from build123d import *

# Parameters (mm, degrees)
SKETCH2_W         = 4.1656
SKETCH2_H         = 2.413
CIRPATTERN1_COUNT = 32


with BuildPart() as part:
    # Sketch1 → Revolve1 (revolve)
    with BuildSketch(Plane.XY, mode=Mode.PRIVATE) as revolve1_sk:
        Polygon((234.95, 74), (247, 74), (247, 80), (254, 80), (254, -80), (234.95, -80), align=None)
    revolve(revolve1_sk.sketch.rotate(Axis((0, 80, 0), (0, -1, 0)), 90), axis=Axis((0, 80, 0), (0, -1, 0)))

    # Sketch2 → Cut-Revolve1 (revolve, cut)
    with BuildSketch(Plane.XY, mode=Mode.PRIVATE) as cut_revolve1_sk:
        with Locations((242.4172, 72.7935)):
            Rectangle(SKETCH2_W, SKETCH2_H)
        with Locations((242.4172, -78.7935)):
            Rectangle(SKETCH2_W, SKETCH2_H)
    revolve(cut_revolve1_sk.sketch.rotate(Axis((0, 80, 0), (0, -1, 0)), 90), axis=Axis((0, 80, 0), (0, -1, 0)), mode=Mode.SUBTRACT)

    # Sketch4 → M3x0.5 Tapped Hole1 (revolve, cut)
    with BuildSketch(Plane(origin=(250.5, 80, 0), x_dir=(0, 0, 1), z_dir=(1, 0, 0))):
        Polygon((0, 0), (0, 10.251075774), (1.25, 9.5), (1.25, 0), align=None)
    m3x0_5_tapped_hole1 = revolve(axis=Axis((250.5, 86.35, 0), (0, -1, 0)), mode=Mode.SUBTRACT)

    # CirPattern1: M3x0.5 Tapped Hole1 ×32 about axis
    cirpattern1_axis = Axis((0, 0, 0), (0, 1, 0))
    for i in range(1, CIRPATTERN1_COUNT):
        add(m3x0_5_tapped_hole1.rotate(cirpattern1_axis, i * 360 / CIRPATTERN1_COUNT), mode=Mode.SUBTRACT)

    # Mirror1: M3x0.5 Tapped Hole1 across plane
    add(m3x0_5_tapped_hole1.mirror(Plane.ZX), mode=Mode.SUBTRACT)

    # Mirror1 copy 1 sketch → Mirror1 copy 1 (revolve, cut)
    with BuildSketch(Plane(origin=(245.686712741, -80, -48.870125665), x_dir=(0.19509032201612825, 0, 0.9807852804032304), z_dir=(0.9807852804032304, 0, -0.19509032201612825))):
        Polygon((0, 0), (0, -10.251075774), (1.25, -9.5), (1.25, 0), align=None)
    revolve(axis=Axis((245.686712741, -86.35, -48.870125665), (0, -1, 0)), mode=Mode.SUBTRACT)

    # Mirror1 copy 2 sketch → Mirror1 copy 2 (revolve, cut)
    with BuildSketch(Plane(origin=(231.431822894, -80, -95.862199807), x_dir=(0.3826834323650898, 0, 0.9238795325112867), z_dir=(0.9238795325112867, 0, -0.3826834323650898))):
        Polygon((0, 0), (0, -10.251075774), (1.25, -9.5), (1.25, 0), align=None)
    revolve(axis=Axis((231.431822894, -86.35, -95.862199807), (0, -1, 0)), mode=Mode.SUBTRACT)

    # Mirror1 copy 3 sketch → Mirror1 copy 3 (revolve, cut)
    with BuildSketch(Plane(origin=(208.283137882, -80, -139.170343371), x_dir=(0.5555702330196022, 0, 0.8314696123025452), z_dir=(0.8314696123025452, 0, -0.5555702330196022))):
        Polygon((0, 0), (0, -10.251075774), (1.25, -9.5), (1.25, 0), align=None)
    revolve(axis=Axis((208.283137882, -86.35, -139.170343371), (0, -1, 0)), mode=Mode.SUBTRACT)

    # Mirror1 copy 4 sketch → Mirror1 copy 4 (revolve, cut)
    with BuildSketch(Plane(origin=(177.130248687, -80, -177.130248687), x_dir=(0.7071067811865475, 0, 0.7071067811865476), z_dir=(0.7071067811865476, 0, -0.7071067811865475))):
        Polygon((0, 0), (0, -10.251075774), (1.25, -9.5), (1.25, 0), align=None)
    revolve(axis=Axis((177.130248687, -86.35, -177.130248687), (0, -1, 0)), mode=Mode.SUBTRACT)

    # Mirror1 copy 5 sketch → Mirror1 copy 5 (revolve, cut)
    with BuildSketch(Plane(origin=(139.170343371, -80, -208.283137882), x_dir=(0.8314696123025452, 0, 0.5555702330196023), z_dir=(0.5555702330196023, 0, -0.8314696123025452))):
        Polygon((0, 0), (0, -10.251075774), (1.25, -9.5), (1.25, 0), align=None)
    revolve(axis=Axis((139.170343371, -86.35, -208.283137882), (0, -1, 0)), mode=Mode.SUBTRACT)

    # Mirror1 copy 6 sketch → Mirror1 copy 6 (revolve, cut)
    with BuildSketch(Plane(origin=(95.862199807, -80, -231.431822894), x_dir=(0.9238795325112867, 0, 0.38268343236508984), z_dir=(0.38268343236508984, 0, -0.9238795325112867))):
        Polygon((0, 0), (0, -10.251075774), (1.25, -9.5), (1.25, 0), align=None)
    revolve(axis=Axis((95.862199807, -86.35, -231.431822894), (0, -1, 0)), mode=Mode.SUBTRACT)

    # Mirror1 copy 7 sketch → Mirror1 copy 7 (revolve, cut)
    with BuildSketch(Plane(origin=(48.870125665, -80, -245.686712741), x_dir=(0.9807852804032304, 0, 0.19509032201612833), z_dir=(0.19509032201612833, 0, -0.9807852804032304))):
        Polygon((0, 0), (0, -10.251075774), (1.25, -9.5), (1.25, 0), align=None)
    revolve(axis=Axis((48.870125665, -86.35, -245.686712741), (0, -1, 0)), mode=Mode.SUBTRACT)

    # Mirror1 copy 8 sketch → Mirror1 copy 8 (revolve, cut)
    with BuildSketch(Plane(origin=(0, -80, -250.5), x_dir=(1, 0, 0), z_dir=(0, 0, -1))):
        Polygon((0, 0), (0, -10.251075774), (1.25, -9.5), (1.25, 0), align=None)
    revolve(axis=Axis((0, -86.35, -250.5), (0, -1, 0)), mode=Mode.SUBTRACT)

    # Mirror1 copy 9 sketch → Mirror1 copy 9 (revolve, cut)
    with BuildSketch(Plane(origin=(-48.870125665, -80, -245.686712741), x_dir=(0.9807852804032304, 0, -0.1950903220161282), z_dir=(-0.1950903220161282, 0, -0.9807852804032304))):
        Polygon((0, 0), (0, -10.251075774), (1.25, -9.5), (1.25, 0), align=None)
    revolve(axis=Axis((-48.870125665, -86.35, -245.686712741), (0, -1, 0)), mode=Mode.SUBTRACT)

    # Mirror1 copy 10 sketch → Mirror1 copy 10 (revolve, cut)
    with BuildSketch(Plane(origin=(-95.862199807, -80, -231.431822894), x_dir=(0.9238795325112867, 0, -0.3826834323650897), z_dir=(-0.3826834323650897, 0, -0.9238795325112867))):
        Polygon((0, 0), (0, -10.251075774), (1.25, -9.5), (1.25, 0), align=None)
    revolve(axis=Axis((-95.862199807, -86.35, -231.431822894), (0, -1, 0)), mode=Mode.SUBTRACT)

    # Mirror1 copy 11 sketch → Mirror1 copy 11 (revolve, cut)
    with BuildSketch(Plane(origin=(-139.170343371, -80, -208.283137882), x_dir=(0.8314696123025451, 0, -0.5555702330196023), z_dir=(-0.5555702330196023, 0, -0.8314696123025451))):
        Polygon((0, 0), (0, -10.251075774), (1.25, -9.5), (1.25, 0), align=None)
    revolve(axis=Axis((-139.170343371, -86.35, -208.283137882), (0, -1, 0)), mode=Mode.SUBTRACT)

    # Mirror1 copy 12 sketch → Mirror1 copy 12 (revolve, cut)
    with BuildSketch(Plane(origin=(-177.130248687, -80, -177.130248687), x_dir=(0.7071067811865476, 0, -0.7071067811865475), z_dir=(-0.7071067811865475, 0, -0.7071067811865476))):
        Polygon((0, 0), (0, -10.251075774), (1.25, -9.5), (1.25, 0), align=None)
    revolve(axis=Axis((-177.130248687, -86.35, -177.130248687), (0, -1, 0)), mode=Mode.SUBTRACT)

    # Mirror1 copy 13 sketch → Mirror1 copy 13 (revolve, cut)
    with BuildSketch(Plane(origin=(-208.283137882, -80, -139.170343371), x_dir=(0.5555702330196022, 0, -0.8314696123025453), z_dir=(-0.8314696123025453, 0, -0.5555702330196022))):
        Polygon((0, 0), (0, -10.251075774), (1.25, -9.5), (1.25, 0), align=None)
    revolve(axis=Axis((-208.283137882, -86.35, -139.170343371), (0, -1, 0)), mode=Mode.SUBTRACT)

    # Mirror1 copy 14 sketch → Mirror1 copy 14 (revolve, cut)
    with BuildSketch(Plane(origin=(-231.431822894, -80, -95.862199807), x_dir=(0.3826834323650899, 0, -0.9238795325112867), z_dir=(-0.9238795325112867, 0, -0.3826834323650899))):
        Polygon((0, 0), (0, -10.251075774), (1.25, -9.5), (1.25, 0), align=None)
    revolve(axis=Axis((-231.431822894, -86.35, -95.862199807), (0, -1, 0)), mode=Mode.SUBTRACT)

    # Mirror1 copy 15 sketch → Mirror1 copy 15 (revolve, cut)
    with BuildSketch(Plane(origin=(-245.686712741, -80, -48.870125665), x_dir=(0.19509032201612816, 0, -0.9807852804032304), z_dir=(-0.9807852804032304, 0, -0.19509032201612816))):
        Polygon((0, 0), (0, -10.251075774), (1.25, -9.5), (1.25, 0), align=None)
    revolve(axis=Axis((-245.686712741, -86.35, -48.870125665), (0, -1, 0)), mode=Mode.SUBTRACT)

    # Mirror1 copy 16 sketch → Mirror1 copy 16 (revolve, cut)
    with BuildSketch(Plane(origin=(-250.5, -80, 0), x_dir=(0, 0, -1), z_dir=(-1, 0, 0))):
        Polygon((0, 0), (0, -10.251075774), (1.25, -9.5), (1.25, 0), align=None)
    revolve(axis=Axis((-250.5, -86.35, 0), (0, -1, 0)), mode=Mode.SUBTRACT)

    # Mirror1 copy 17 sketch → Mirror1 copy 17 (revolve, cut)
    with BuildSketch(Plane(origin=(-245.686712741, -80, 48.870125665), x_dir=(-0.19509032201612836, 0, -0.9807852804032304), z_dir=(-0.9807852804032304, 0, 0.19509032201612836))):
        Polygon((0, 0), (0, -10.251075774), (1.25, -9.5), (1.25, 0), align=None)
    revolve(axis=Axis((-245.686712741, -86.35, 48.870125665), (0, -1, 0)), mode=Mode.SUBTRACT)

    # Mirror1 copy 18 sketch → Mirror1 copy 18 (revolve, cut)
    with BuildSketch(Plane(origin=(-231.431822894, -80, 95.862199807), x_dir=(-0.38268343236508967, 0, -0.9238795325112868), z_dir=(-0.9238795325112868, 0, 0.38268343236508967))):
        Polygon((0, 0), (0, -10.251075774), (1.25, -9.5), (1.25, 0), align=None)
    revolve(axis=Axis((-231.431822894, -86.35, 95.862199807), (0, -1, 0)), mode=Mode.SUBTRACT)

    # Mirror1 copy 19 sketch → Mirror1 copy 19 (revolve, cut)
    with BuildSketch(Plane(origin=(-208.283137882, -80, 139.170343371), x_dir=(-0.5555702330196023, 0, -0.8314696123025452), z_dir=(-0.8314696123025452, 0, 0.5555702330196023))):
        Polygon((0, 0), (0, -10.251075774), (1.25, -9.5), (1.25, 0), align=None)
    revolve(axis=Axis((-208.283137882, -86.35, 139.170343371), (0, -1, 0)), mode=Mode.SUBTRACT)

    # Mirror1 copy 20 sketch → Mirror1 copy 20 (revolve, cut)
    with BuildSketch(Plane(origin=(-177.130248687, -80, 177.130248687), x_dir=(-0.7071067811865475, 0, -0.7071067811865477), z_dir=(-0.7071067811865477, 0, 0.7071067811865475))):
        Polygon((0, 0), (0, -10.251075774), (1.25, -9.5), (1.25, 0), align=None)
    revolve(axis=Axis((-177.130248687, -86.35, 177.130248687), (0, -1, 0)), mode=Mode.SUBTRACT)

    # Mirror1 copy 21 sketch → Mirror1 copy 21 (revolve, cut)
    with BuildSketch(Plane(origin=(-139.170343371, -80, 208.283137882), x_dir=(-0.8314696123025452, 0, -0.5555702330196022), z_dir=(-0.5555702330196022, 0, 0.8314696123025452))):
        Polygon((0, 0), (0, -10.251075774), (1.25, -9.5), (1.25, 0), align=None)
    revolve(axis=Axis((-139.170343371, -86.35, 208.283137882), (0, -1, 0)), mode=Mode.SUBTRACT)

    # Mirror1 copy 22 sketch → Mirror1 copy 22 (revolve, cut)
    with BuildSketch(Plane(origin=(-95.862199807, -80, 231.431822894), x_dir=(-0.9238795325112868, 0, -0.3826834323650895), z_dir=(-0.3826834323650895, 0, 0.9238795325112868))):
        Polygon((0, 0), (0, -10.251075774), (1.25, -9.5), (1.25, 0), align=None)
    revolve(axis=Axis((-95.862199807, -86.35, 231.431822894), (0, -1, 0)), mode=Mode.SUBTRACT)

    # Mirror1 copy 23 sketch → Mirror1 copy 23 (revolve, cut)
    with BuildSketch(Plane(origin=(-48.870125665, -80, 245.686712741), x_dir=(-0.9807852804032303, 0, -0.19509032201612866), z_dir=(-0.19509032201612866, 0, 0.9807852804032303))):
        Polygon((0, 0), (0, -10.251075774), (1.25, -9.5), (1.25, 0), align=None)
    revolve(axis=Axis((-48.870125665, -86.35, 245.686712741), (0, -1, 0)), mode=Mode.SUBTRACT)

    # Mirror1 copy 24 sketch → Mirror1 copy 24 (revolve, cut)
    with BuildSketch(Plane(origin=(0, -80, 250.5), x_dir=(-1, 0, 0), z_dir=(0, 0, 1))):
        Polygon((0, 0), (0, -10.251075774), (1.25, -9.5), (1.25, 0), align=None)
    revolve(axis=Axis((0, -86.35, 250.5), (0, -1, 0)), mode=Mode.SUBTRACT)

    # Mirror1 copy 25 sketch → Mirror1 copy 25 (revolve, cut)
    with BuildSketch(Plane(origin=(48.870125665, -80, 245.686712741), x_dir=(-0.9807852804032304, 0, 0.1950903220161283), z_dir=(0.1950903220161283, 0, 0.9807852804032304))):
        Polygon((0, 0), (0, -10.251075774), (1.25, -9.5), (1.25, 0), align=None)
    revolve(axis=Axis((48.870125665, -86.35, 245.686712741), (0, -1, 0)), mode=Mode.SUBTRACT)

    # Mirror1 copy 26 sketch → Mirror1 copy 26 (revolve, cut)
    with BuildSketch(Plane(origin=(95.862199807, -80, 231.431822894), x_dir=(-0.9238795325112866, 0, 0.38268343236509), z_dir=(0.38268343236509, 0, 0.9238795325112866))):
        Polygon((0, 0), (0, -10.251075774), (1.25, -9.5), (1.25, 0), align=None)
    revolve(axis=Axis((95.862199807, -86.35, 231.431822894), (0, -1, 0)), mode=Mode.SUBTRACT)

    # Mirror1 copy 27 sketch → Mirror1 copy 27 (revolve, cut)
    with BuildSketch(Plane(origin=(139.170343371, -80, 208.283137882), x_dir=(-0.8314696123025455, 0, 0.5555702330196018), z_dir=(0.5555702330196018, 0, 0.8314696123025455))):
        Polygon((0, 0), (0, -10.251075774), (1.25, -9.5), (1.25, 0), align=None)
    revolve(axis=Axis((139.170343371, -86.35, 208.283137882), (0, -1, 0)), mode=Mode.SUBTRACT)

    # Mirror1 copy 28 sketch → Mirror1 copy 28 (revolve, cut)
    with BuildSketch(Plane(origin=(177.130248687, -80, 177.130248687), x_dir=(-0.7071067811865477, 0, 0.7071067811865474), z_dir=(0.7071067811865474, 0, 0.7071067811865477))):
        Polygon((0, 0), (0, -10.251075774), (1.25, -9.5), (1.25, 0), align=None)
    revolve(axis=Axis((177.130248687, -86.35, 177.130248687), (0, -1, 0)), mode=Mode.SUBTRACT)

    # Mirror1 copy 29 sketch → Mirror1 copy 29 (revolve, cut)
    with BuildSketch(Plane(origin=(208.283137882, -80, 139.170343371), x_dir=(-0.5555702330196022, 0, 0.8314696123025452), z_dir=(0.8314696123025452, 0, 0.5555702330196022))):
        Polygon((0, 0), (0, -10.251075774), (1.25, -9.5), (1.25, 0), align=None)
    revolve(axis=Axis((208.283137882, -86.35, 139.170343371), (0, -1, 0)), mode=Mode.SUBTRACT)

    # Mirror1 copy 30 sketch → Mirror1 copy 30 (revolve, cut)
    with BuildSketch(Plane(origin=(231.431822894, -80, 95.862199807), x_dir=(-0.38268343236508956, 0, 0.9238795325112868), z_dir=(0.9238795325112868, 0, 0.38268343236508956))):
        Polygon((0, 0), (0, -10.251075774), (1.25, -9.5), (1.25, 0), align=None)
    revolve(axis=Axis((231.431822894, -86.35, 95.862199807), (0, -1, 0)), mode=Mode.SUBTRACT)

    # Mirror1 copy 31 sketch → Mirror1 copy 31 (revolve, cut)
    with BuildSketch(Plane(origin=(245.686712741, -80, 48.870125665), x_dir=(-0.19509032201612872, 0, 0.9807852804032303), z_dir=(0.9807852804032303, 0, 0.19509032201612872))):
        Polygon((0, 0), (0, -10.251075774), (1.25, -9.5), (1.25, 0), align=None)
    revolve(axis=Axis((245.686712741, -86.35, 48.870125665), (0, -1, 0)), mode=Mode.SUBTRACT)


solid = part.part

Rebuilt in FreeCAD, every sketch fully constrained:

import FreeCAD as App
import Part
import Sketcher
Q = App.Units.Quantity


def add_polygon(sketch, points):
    """Adds a closed chain of lines whose ends are joined by coincident constraints."""
    first, n = sketch.GeometryCount, len(points)
    for a, b in zip(points, points[1:] + points[:1]):
        sketch.addGeometry(Part.LineSegment(App.Vector(*a, 0), App.Vector(*b, 0)), False)
    for i in range(n):
        sketch.addConstraint(Sketcher.Constraint("Coincident", first + i, 2, first + (i + 1) % n, 1))

doc = App.newDocument("Part")
body = doc.addObject("PartDesign::Body", "Body")

sketch1 = body.newObject("Sketcher::SketchObject", "Sketch")
sketch1.AttachmentSupport = (doc.getObject("XY_Plane"), [""])
sketch1.MapMode = "FlatFace"
add_polygon(sketch1, [(247, 74), (234.95, 74), (234.95, -80), (254, -80), (254, 80), (247, 80)])
sketch1.addConstraint([
    Sketcher.Constraint("Horizontal", 0),
    Sketcher.Constraint("Vertical", 1),
    Sketcher.Constraint("Horizontal", 2),
    Sketcher.Constraint("Vertical", 3),
    Sketcher.Constraint("Horizontal", 4),
    Sketcher.Constraint("Vertical", 5),
    Sketcher.Constraint("DistanceX", 4, 2, 4, 1, 7.0),
    Sketcher.Constraint("DistanceY", 1, 2, 1, 1, 154.0),
    Sketcher.Constraint("DistanceY", 3, 1, 3, 2, 160.0),
    Sketcher.Constraint("DistanceY", -1, 1, 0, 2, 74.0),
    Sketcher.Constraint("DistanceX", -1, 1, 2, 2, 254.0),
    Sketcher.Constraint("DistanceX", 0, 2, 0, 1, 12.05),
])
revolution = body.newObject("PartDesign::Revolution", "Revolution")
revolution.Profile = sketch1
revolution.ReferenceAxis = (sketch1, ["V_Axis"])
revolution.Angle = 360

sketch2 = body.newObject("Sketcher::SketchObject", "Sketch001")
sketch2.AttachmentSupport = (doc.getObject("XY_Plane"), [""])
sketch2.MapMode = "FlatFace"
add_polygon(sketch2, [(240.3344, 74), (240.3344, 71.587), (244.5, 71.587), (244.5, 74)])
add_polygon(sketch2, [(240.3344, -77.587), (240.3344, -80), (244.5, -80), (244.5, -77.587)])
sketch2.addConstraint([
    Sketcher.Constraint("Vertical", 0),
    Sketcher.Constraint("Horizontal", 1),
    Sketcher.Constraint("Vertical", 2),
    Sketcher.Constraint("Horizontal", 3),
    Sketcher.Constraint("Vertical", 4),
    Sketcher.Constraint("Horizontal", 5),
    Sketcher.Constraint("Vertical", 6),
    Sketcher.Constraint("Horizontal", 7),
    Sketcher.Constraint("Vertical", 3, 2, 4, 2),
    Sketcher.Constraint("Vertical", 2, 2, 5, 2),
    Sketcher.Constraint("Equal", 2, 4),
    Sketcher.Constraint("DistanceY", -1, 1, 2, 2, 74.0),
    Sketcher.Constraint("DistanceY", 4, 2, -1, 1, 80.0),
    Sketcher.Constraint("DistanceX", -1, 1, 1, 2, 244.5),
    Sketcher.Constraint("DistanceY", 0, 2, 0, 1, 2.413),
    Sketcher.Constraint("DistanceX", 1, 1, 1, 2, 4.1656),
])
groove = body.newObject("PartDesign::Groove", "Groove")
groove.Profile = sketch2
groove.ReferenceAxis = (sketch2, ["V_Axis"])
groove.Angle = 360

sketch3 = body.newObject("Sketcher::SketchObject", "Sketch002")
sketch3.AttachmentSupport = (doc.getObject("YZ_Plane"), [""])
sketch3.MapMode = "FlatFace"
sketch3.AttachmentOffset = App.Placement(App.Vector(0, 0, 250.5), App.Rotation())
add_polygon(sketch3, [(69.748924, 0), (80, 0), (80, 1.25), (70.5, 1.25)])
sketch3.addConstraint([
    Sketcher.Constraint("Horizontal", 0),
    Sketcher.Constraint("Vertical", 1),
    Sketcher.Constraint("Horizontal", 2),
    Sketcher.Constraint("PointOnObject", 0, 2, -1),
    Sketcher.Constraint("Angle", 3, Q("-121 deg")),
    Sketcher.Constraint("DistanceX", 2, 2, 2, 1, 9.5),
    Sketcher.Constraint("DistanceX", -1, 1, 0, 2, 80.0),
    Sketcher.Constraint("DistanceY", 1, 1, 1, 2, 1.25),
])
groove2 = body.newObject("PartDesign::Groove", "Groove001")
groove2.Profile = sketch3
groove2.ReferenceAxis = (sketch3, ["H_Axis"])
groove2.Angle = 360
doc.recompute()

polarpattern = body.newObject("PartDesign::PolarPattern", "PolarPattern")
polarpattern.Originals = [groove2]
polarpattern.Axis = (doc.getObject("Y_Axis"), [""])
polarpattern.Angle = 360
polarpattern.Occurrences = 32
body.Tip = polarpattern
doc.recompute()

mirrored = body.newObject("PartDesign::Mirrored", "Mirrored")
mirrored.Originals = [groove2]
mirrored.MirrorPlane = (doc.getObject("XZ_Plane"), [""])
body.Tip = mirrored

sketch4 = body.newObject("Sketcher::SketchObject", "Sketch003")
sketch4.Placement = App.Placement(App.Vector(245.686713, -80, -48.870126), App.Rotation(App.Vector(0.195090322, 0, 0.98078528), App.Vector(0, -0.999999999, 0), App.Vector(0.98078528, 0, -0.195090322), "ZXY"))
add_polygon(sketch4, [(0, 0), (0, -10.251076), (1.25, -9.5), (1.25, 0)])
sketch4.addConstraint([
    Sketcher.Constraint("Vertical", 0),
    Sketcher.Constraint("Vertical", 2),
    Sketcher.Constraint("Horizontal", 3),
    Sketcher.Constraint("Coincident", 3, 2, -1, 1),
    Sketcher.Constraint("Angle", 1, Q("31 deg")),
    Sketcher.Constraint("DistanceY", 2, 1, 2, 2, 9.5),
    Sketcher.Constraint("DistanceX", 3, 2, 3, 1, 1.25),
])
groove3 = body.newObject("PartDesign::Groove", "Groove002")
groove3.Profile = sketch4
groove3.ReferenceAxis = (sketch4, ["V_Axis"])
groove3.Angle = 360

sketch5 = body.newObject("Sketcher::SketchObject", "Sketch004")
sketch5.Placement = App.Placement(App.Vector(231.431823, -80, -95.8622), App.Rotation(App.Vector(0.382683432, 0, 0.923879533), App.Vector(0, -1.000000001, 0), App.Vector(0.923879533, 0, -0.382683432), "ZXY"))
add_polygon(sketch5, [(0, 0), (0, -10.251076), (1.25, -9.5), (1.25, 0)])
sketch5.addConstraint([
    Sketcher.Constraint("Vertical", 0),
    Sketcher.Constraint("Vertical", 2),
    Sketcher.Constraint("Horizontal", 3),
    Sketcher.Constraint("Coincident", 3, 2, -1, 1),
    Sketcher.Constraint("Angle", 1, Q("31 deg")),
    Sketcher.Constraint("DistanceY", 2, 1, 2, 2, 9.5),
    Sketcher.Constraint("DistanceX", 3, 2, 3, 1, 1.25),
])
groove4 = body.newObject("PartDesign::Groove", "Groove003")
groove4.Profile = sketch5
groove4.ReferenceAxis = (sketch5, ["V_Axis"])
groove4.Angle = 360

sketch6 = body.newObject("Sketcher::SketchObject", "Sketch005")
sketch6.Placement = App.Placement(App.Vector(208.283138, -80, -139.170343), App.Rotation(App.Vector(0.555570233, 0, 0.831469612), App.Vector(0, -0.999999999, 0), App.Vector(0.831469612, 0, -0.555570233), "ZXY"))
add_polygon(sketch6, [(0, 0), (0, -10.251076), (1.25, -9.5), (1.25, 0)])
sketch6.addConstraint([
    Sketcher.Constraint("Vertical", 0),
    Sketcher.Constraint("Vertical", 2),
    Sketcher.Constraint("Horizontal", 3),
    Sketcher.Constraint("Coincident", 3, 2, -1, 1),
    Sketcher.Constraint("Angle", 1, Q("31 deg")),
    Sketcher.Constraint("DistanceY", 2, 1, 2, 2, 9.5),
    Sketcher.Constraint("DistanceX", 3, 2, 3, 1, 1.25),
])
groove5 = body.newObject("PartDesign::Groove", "Groove004")
groove5.Profile = sketch6
groove5.ReferenceAxis = (sketch6, ["V_Axis"])
groove5.Angle = 360

sketch7 = body.newObject("Sketcher::SketchObject", "Sketch006")
sketch7.Placement = App.Placement(App.Vector(177.130249, -80, -177.130249), App.Rotation(App.Vector(0.707106781, 0, 0.707106781), App.Vector(0, -0.999999999, 0), App.Vector(0.707106781, 0, -0.707106781), "ZXY"))
add_polygon(sketch7, [(0, 0), (0, -10.251076), (1.25, -9.5), (1.25, 0)])
sketch7.addConstraint([
    Sketcher.Constraint("Vertical", 0),
    Sketcher.Constraint("Vertical", 2),
    Sketcher.Constraint("Horizontal", 3),
    Sketcher.Constraint("Coincident", 3, 2, -1, 1),
    Sketcher.Constraint("Angle", 1, Q("31 deg")),
    Sketcher.Constraint("DistanceY", 2, 1, 2, 2, 9.5),
    Sketcher.Constraint("DistanceX", 3, 2, 3, 1, 1.25),
])
groove6 = body.newObject("PartDesign::Groove", "Groove005")
groove6.Profile = sketch7
groove6.ReferenceAxis = (sketch7, ["V_Axis"])
groove6.Angle = 360

sketch8 = body.newObject("Sketcher::SketchObject", "Sketch007")
sketch8.Placement = App.Placement(App.Vector(139.170343, -80, -208.283138), App.Rotation(App.Vector(0.831469612, 0, 0.555570233), App.Vector(0, -0.999999999, 0), App.Vector(0.555570233, 0, -0.831469612), "ZXY"))
add_polygon(sketch8, [(0, 0), (0, -10.251076), (1.25, -9.5), (1.25, 0)])
sketch8.addConstraint([
    Sketcher.Constraint("Vertical", 0),
    Sketcher.Constraint("Vertical", 2),
    Sketcher.Constraint("Horizontal", 3),
    Sketcher.Constraint("Coincident", 3, 2, -1, 1),
    Sketcher.Constraint("Angle", 1, Q("31 deg")),
    Sketcher.Constraint("DistanceY", 2, 1, 2, 2, 9.5),
    Sketcher.Constraint("DistanceX", 3, 2, 3, 1, 1.25),
])
groove7 = body.newObject("PartDesign::Groove", "Groove006")
groove7.Profile = sketch8
groove7.ReferenceAxis = (sketch8, ["V_Axis"])
groove7.Angle = 360

sketch9 = body.newObject("Sketcher::SketchObject", "Sketch008")
sketch9.Placement = App.Placement(App.Vector(95.8622, -80, -231.431823), App.Rotation(App.Vector(0.923879533, 0, 0.382683432), App.Vector(0, -1.000000001, 0), App.Vector(0.382683432, 0, -0.923879533), "ZXY"))
add_polygon(sketch9, [(0, 0), (0, -10.251076), (1.25, -9.5), (1.25, 0)])
sketch9.addConstraint([
    Sketcher.Constraint("Vertical", 0),
    Sketcher.Constraint("Vertical", 2),
    Sketcher.Constraint("Horizontal", 3),
    Sketcher.Constraint("Coincident", 3, 2, -1, 1),
    Sketcher.Constraint("Angle", 1, Q("31 deg")),
    Sketcher.Constraint("DistanceY", 2, 1, 2, 2, 9.5),
    Sketcher.Constraint("DistanceX", 3, 2, 3, 1, 1.25),
])
groove8 = body.newObject("PartDesign::Groove", "Groove007")
groove8.Profile = sketch9
groove8.ReferenceAxis = (sketch9, ["V_Axis"])
groove8.Angle = 360

sketch10 = body.newObject("Sketcher::SketchObject", "Sketch009")
sketch10.Placement = App.Placement(App.Vector(48.870126, -80, -245.686713), App.Rotation(App.Vector(0.98078528, 0, 0.195090322), App.Vector(0, -0.999999999, 0), App.Vector(0.195090322, 0, -0.98078528), "ZXY"))
add_polygon(sketch10, [(0, 0), (0, -10.251076), (1.25, -9.5), (1.25, 0)])
sketch10.addConstraint([
    Sketcher.Constraint("Vertical", 0),
    Sketcher.Constraint("Vertical", 2),
    Sketcher.Constraint("Horizontal", 3),
    Sketcher.Constraint("Coincident", 3, 2, -1, 1),
    Sketcher.Constraint("Angle", 1, Q("31 deg")),
    Sketcher.Constraint("DistanceY", 2, 1, 2, 2, 9.5),
    Sketcher.Constraint("DistanceX", 3, 2, 3, 1, 1.25),
])
groove9 = body.newObject("PartDesign::Groove", "Groove008")
groove9.Profile = sketch10
groove9.ReferenceAxis = (sketch10, ["V_Axis"])
groove9.Angle = 360

sketch11 = body.newObject("Sketcher::SketchObject", "Sketch010")
sketch11.AttachmentSupport = (doc.getObject("XY_Plane"), [""])
sketch11.MapMode = "FlatFace"
sketch11.AttachmentOffset = App.Placement(App.Vector(0, 0, -250.5), App.Rotation())
add_polygon(sketch11, [(0, -80), (0, -69.748924), (1.25, -70.5), (1.25, -80)])
sketch11.addConstraint([
    Sketcher.Constraint("Vertical", 0),
    Sketcher.Constraint("Vertical", 2),
    Sketcher.Constraint("Horizontal", 3),
    Sketcher.Constraint("PointOnObject", 0, 2, -2),
    Sketcher.Constraint("Angle", 1, Q("-31 deg")),
    Sketcher.Constraint("DistanceY", 2, 2, 2, 1, 9.5),
    Sketcher.Constraint("DistanceY", 2, 2, -1, 1, 80.0),
    Sketcher.Constraint("DistanceX", 3, 2, 3, 1, 1.25),
])
groove10 = body.newObject("PartDesign::Groove", "Groove009")
groove10.Profile = sketch11
groove10.ReferenceAxis = (sketch11, ["V_Axis"])
groove10.Angle = 360

sketch12 = body.newObject("Sketcher::SketchObject", "Sketch011")
sketch12.Placement = App.Placement(App.Vector(-48.870126, -80, -245.686713), App.Rotation(App.Vector(0.98078528, 0, -0.195090322), App.Vector(0, -0.999999999, 0), App.Vector(-0.195090322, 0, -0.98078528), "ZXY"))
add_polygon(sketch12, [(0, 0), (0, -10.251076), (1.25, -9.5), (1.25, 0)])
sketch12.addConstraint([
    Sketcher.Constraint("Vertical", 0),
    Sketcher.Constraint("Vertical", 2),
    Sketcher.Constraint("Horizontal", 3),
    Sketcher.Constraint("Coincident", 3, 2, -1, 1),
    Sketcher.Constraint("Angle", 1, Q("31 deg")),
    Sketcher.Constraint("DistanceY", 2, 1, 2, 2, 9.5),
    Sketcher.Constraint("DistanceX", 3, 2, 3, 1, 1.25),
])
groove11 = body.newObject("PartDesign::Groove", "Groove010")
groove11.Profile = sketch12
groove11.ReferenceAxis = (sketch12, ["V_Axis"])
groove11.Angle = 360

sketch13 = body.newObject("Sketcher::SketchObject", "Sketch012")
sketch13.Placement = App.Placement(App.Vector(-95.8622, -80, -231.431823), App.Rotation(App.Vector(0.923879533, 0, -0.382683432), App.Vector(0, -1.000000001, 0), App.Vector(-0.382683432, 0, -0.923879533), "ZXY"))
add_polygon(sketch13, [(0, 0), (0, -10.251076), (1.25, -9.5), (1.25, 0)])
sketch13.addConstraint([
    Sketcher.Constraint("Vertical", 0),
    Sketcher.Constraint("Vertical", 2),
    Sketcher.Constraint("Horizontal", 3),
    Sketcher.Constraint("Coincident", 3, 2, -1, 1),
    Sketcher.Constraint("Angle", 1, Q("31 deg")),
    Sketcher.Constraint("DistanceY", 2, 1, 2, 2, 9.5),
    Sketcher.Constraint("DistanceX", 3, 2, 3, 1, 1.25),
])
groove12 = body.newObject("PartDesign::Groove", "Groove011")
groove12.Profile = sketch13
groove12.ReferenceAxis = (sketch13, ["V_Axis"])
groove12.Angle = 360

sketch14 = body.newObject("Sketcher::SketchObject", "Sketch013")
sketch14.Placement = App.Placement(App.Vector(-139.170343, -80, -208.283138), App.Rotation(App.Vector(0.831469612, 0, -0.555570233), App.Vector(0, -0.999999999, 0), App.Vector(-0.555570233, 0, -0.831469612), "ZXY"))
add_polygon(sketch14, [(0, 0), (0, -10.251076), (1.25, -9.5), (1.25, 0)])
sketch14.addConstraint([
    Sketcher.Constraint("Vertical", 0),
    Sketcher.Constraint("Vertical", 2),
    Sketcher.Constraint("Horizontal", 3),
    Sketcher.Constraint("Coincident", 3, 2, -1, 1),
    Sketcher.Constraint("Angle", 1, Q("31 deg")),
    Sketcher.Constraint("DistanceY", 2, 1, 2, 2, 9.5),
    Sketcher.Constraint("DistanceX", 3, 2, 3, 1, 1.25),
])
groove13 = body.newObject("PartDesign::Groove", "Groove012")
groove13.Profile = sketch14
groove13.ReferenceAxis = (sketch14, ["V_Axis"])
groove13.Angle = 360

sketch15 = body.newObject("Sketcher::SketchObject", "Sketch014")
sketch15.Placement = App.Placement(App.Vector(-177.130249, -80, -177.130249), App.Rotation(App.Vector(0.707106781, 0, -0.707106781), App.Vector(0, -0.999999999, 0), App.Vector(-0.707106781, 0, -0.707106781), "ZXY"))
add_polygon(sketch15, [(0, 0), (0, -10.251076), (1.25, -9.5), (1.25, 0)])
sketch15.addConstraint([
    Sketcher.Constraint("Vertical", 0),
    Sketcher.Constraint("Vertical", 2),
    Sketcher.Constraint("Horizontal", 3),
    Sketcher.Constraint("Coincident", 3, 2, -1, 1),
    Sketcher.Constraint("Angle", 1, Q("31 deg")),
    Sketcher.Constraint("DistanceY", 2, 1, 2, 2, 9.5),
    Sketcher.Constraint("DistanceX", 3, 2, 3, 1, 1.25),
])
groove14 = body.newObject("PartDesign::Groove", "Groove013")
groove14.Profile = sketch15
groove14.ReferenceAxis = (sketch15, ["V_Axis"])
groove14.Angle = 360

sketch16 = body.newObject("Sketcher::SketchObject", "Sketch015")
sketch16.Placement = App.Placement(App.Vector(-208.283138, -80, -139.170343), App.Rotation(App.Vector(0.555570233, 0, -0.831469612), App.Vector(0, -0.999999999, 0), App.Vector(-0.831469612, 0, -0.555570233), "ZXY"))
add_polygon(sketch16, [(0, 0), (0, -10.251076), (1.25, -9.5), (1.25, 0)])
sketch16.addConstraint([
    Sketcher.Constraint("Vertical", 0),
    Sketcher.Constraint("Vertical", 2),
    Sketcher.Constraint("Horizontal", 3),
    Sketcher.Constraint("Coincident", 3, 2, -1, 1),
    Sketcher.Constraint("Angle", 1, Q("31 deg")),
    Sketcher.Constraint("DistanceY", 2, 1, 2, 2, 9.5),
    Sketcher.Constraint("DistanceX", 3, 2, 3, 1, 1.25),
])
groove15 = body.newObject("PartDesign::Groove", "Groove014")
groove15.Profile = sketch16
groove15.ReferenceAxis = (sketch16, ["V_Axis"])
groove15.Angle = 360

sketch17 = body.newObject("Sketcher::SketchObject", "Sketch016")
sketch17.Placement = App.Placement(App.Vector(-231.431823, -80, -95.8622), App.Rotation(App.Vector(0.382683432, 0, -0.923879533), App.Vector(0, -1.000000001, 0), App.Vector(-0.923879533, 0, -0.382683432), "ZXY"))
add_polygon(sketch17, [(0, 0), (0, -10.251076), (1.25, -9.5), (1.25, 0)])
sketch17.addConstraint([
    Sketcher.Constraint("Vertical", 0),
    Sketcher.Constraint("Vertical", 2),
    Sketcher.Constraint("Horizontal", 3),
    Sketcher.Constraint("Coincident", 3, 2, -1, 1),
    Sketcher.Constraint("Angle", 1, Q("31 deg")),
    Sketcher.Constraint("DistanceY", 2, 1, 2, 2, 9.5),
    Sketcher.Constraint("DistanceX", 3, 2, 3, 1, 1.25),
])
groove16 = body.newObject("PartDesign::Groove", "Groove015")
groove16.Profile = sketch17
groove16.ReferenceAxis = (sketch17, ["V_Axis"])
groove16.Angle = 360

sketch18 = body.newObject("Sketcher::SketchObject", "Sketch017")
sketch18.Placement = App.Placement(App.Vector(-245.686713, -80, -48.870126), App.Rotation(App.Vector(0.195090322, 0, -0.98078528), App.Vector(0, -0.999999999, 0), App.Vector(-0.98078528, 0, -0.195090322), "ZXY"))
add_polygon(sketch18, [(0, 0), (0, -10.251076), (1.25, -9.5), (1.25, 0)])
sketch18.addConstraint([
    Sketcher.Constraint("Vertical", 0),
    Sketcher.Constraint("Vertical", 2),
    Sketcher.Constraint("Horizontal", 3),
    Sketcher.Constraint("Coincident", 3, 2, -1, 1),
    Sketcher.Constraint("Angle", 1, Q("31 deg")),
    Sketcher.Constraint("DistanceY", 2, 1, 2, 2, 9.5),
    Sketcher.Constraint("DistanceX", 3, 2, 3, 1, 1.25),
])
groove17 = body.newObject("PartDesign::Groove", "Groove016")
groove17.Profile = sketch18
groove17.ReferenceAxis = (sketch18, ["V_Axis"])
groove17.Angle = 360

sketch19 = body.newObject("Sketcher::SketchObject", "Sketch018")
sketch19.AttachmentSupport = (doc.getObject("YZ_Plane"), [""])
sketch19.MapMode = "FlatFace"
sketch19.AttachmentOffset = App.Placement(App.Vector(0, 0, -250.5), App.Rotation())
add_polygon(sketch19, [(-80, 0), (-69.748924, 0), (-70.5, -1.25), (-80, -1.25)])
sketch19.addConstraint([
    Sketcher.Constraint("Horizontal", 0),
    Sketcher.Constraint("Horizontal", 2),
    Sketcher.Constraint("Vertical", 3),
    Sketcher.Constraint("PointOnObject", 0, 2, -1),
    Sketcher.Constraint("Angle", 1, Q("-121 deg")),
    Sketcher.Constraint("DistanceX", 2, 2, 2, 1, 9.5),
    Sketcher.Constraint("DistanceX", 2, 2, -1, 1, 80.0),
    Sketcher.Constraint("DistanceY", 3, 1, 3, 2, 1.25),
])
groove18 = body.newObject("PartDesign::Groove", "Groove017")
groove18.Profile = sketch19
groove18.ReferenceAxis = (sketch19, ["H_Axis"])
groove18.Angle = 360

sketch20 = body.newObject("Sketcher::SketchObject", "Sketch019")
sketch20.Placement = App.Placement(App.Vector(-245.686713, -80, 48.870126), App.Rotation(App.Vector(-0.195090322, 0, -0.98078528), App.Vector(0, -0.999999999, 0), App.Vector(-0.98078528, 0, 0.195090322), "ZXY"))
add_polygon(sketch20, [(0, 0), (0, -10.251076), (1.25, -9.5), (1.25, 0)])
sketch20.addConstraint([
    Sketcher.Constraint("Vertical", 0),
    Sketcher.Constraint("Vertical", 2),
    Sketcher.Constraint("Horizontal", 3),
    Sketcher.Constraint("Coincident", 3, 2, -1, 1),
    Sketcher.Constraint("Angle", 1, Q("31 deg")),
    Sketcher.Constraint("DistanceY", 2, 1, 2, 2, 9.5),
    Sketcher.Constraint("DistanceX", 3, 2, 3, 1, 1.25),
])
groove19 = body.newObject("PartDesign::Groove", "Groove018")
groove19.Profile = sketch20
groove19.ReferenceAxis = (sketch20, ["V_Axis"])
groove19.Angle = 360

sketch21 = body.newObject("Sketcher::SketchObject", "Sketch020")
sketch21.Placement = App.Placement(App.Vector(-231.431823, -80, 95.8622), App.Rotation(App.Vector(-0.382683432, 0, -0.923879533), App.Vector(0, -1.000000001, 0), App.Vector(-0.923879533, 0, 0.382683432), "ZXY"))
add_polygon(sketch21, [(0, 0), (0, -10.251076), (1.25, -9.5), (1.25, 0)])
sketch21.addConstraint([
    Sketcher.Constraint("Vertical", 0),
    Sketcher.Constraint("Vertical", 2),
    Sketcher.Constraint("Horizontal", 3),
    Sketcher.Constraint("Coincident", 3, 2, -1, 1),
    Sketcher.Constraint("Angle", 1, Q("31 deg")),
    Sketcher.Constraint("DistanceY", 2, 1, 2, 2, 9.5),
    Sketcher.Constraint("DistanceX", 3, 2, 3, 1, 1.25),
])
groove20 = body.newObject("PartDesign::Groove", "Groove019")
groove20.Profile = sketch21
groove20.ReferenceAxis = (sketch21, ["V_Axis"])
groove20.Angle = 360

sketch22 = body.newObject("Sketcher::SketchObject", "Sketch021")
sketch22.Placement = App.Placement(App.Vector(-208.283138, -80, 139.170343), App.Rotation(App.Vector(-0.555570233, 0, -0.831469612), App.Vector(0, -0.999999999, 0), App.Vector(-0.831469612, 0, 0.555570233), "ZXY"))
add_polygon(sketch22, [(0, 0), (0, -10.251076), (1.25, -9.5), (1.25, 0)])
sketch22.addConstraint([
    Sketcher.Constraint("Vertical", 0),
    Sketcher.Constraint("Vertical", 2),
    Sketcher.Constraint("Horizontal", 3),
    Sketcher.Constraint("Coincident", 3, 2, -1, 1),
    Sketcher.Constraint("Angle", 1, Q("31 deg")),
    Sketcher.Constraint("DistanceY", 2, 1, 2, 2, 9.5),
    Sketcher.Constraint("DistanceX", 3, 2, 3, 1, 1.25),
])
groove21 = body.newObject("PartDesign::Groove", "Groove020")
groove21.Profile = sketch22
groove21.ReferenceAxis = (sketch22, ["V_Axis"])
groove21.Angle = 360

sketch23 = body.newObject("Sketcher::SketchObject", "Sketch022")
sketch23.Placement = App.Placement(App.Vector(-177.130249, -80, 177.130249), App.Rotation(App.Vector(-0.707106781, 0, -0.707106781), App.Vector(0, -0.999999999, 0), App.Vector(-0.707106781, 0, 0.707106781), "ZXY"))
add_polygon(sketch23, [(0, 0), (0, -10.251076), (1.25, -9.5), (1.25, 0)])
sketch23.addConstraint([
    Sketcher.Constraint("Vertical", 0),
    Sketcher.Constraint("Vertical", 2),
    Sketcher.Constraint("Horizontal", 3),
    Sketcher.Constraint("Coincident", 3, 2, -1, 1),
    Sketcher.Constraint("Angle", 1, Q("31 deg")),
    Sketcher.Constraint("DistanceY", 2, 1, 2, 2, 9.5),
    Sketcher.Constraint("DistanceX", 3, 2, 3, 1, 1.25),
])
groove22 = body.newObject("PartDesign::Groove", "Groove021")
groove22.Profile = sketch23
groove22.ReferenceAxis = (sketch23, ["V_Axis"])
groove22.Angle = 360

sketch24 = body.newObject("Sketcher::SketchObject", "Sketch023")
sketch24.Placement = App.Placement(App.Vector(-139.170343, -80, 208.283138), App.Rotation(App.Vector(-0.831469612, 0, -0.555570233), App.Vector(0, -0.999999999, 0), App.Vector(-0.555570233, 0, 0.831469612), "ZXY"))
add_polygon(sketch24, [(0, 0), (0, -10.251076), (1.25, -9.5), (1.25, 0)])
sketch24.addConstraint([
    Sketcher.Constraint("Vertical", 0),
    Sketcher.Constraint("Vertical", 2),
    Sketcher.Constraint("Horizontal", 3),
    Sketcher.Constraint("Coincident", 3, 2, -1, 1),
    Sketcher.Constraint("Angle", 1, Q("31 deg")),
    Sketcher.Constraint("DistanceY", 2, 1, 2, 2, 9.5),
    Sketcher.Constraint("DistanceX", 3, 2, 3, 1, 1.25),
])
groove23 = body.newObject("PartDesign::Groove", "Groove022")
groove23.Profile = sketch24
groove23.ReferenceAxis = (sketch24, ["V_Axis"])
groove23.Angle = 360

sketch25 = body.newObject("Sketcher::SketchObject", "Sketch024")
sketch25.Placement = App.Placement(App.Vector(-95.8622, -80, 231.431823), App.Rotation(App.Vector(-0.923879533, 0, -0.382683432), App.Vector(0, -1.000000001, 0), App.Vector(-0.382683432, 0, 0.923879533), "ZXY"))
add_polygon(sketch25, [(0, 0), (0, -10.251076), (1.25, -9.5), (1.25, 0)])
sketch25.addConstraint([
    Sketcher.Constraint("Vertical", 0),
    Sketcher.Constraint("Vertical", 2),
    Sketcher.Constraint("Horizontal", 3),
    Sketcher.Constraint("Coincident", 3, 2, -1, 1),
    Sketcher.Constraint("Angle", 1, Q("31 deg")),
    Sketcher.Constraint("DistanceY", 2, 1, 2, 2, 9.5),
    Sketcher.Constraint("DistanceX", 3, 2, 3, 1, 1.25),
])
groove24 = body.newObject("PartDesign::Groove", "Groove023")
groove24.Profile = sketch25
groove24.ReferenceAxis = (sketch25, ["V_Axis"])
groove24.Angle = 360

sketch26 = body.newObject("Sketcher::SketchObject", "Sketch025")
sketch26.Placement = App.Placement(App.Vector(-48.870126, -80, 245.686713), App.Rotation(App.Vector(-0.98078528, 0, -0.195090322), App.Vector(0, -0.999999999, 0), App.Vector(-0.195090322, 0, 0.98078528), "ZXY"))
add_polygon(sketch26, [(0, 0), (0, -10.251076), (1.25, -9.5), (1.25, 0)])
sketch26.addConstraint([
    Sketcher.Constraint("Vertical", 0),
    Sketcher.Constraint("Vertical", 2),
    Sketcher.Constraint("Horizontal", 3),
    Sketcher.Constraint("Coincident", 3, 2, -1, 1),
    Sketcher.Constraint("Angle", 1, Q("31 deg")),
    Sketcher.Constraint("DistanceY", 2, 1, 2, 2, 9.5),
    Sketcher.Constraint("DistanceX", 3, 2, 3, 1, 1.25),
])
groove25 = body.newObject("PartDesign::Groove", "Groove024")
groove25.Profile = sketch26
groove25.ReferenceAxis = (sketch26, ["V_Axis"])
groove25.Angle = 360

sketch27 = body.newObject("Sketcher::SketchObject", "Sketch026")
sketch27.AttachmentSupport = (doc.getObject("XY_Plane"), [""])
sketch27.MapMode = "FlatFace"
sketch27.AttachmentOffset = App.Placement(App.Vector(0, 0, 250.5), App.Rotation())
add_polygon(sketch27, [(0, -80), (0, -69.748924), (-1.25, -70.5), (-1.25, -80)])
sketch27.addConstraint([
    Sketcher.Constraint("Vertical", 0),
    Sketcher.Constraint("Vertical", 2),
    Sketcher.Constraint("Horizontal", 3),
    Sketcher.Constraint("PointOnObject", 0, 2, -2),
    Sketcher.Constraint("Angle", 1, Q("-149 deg")),
    Sketcher.Constraint("DistanceY", 2, 2, 2, 1, 9.5),
    Sketcher.Constraint("DistanceY", 2, 2, -1, 1, 80.0),
    Sketcher.Constraint("DistanceX", 3, 1, 3, 2, 1.25),
])
groove26 = body.newObject("PartDesign::Groove", "Groove025")
groove26.Profile = sketch27
groove26.ReferenceAxis = (sketch27, ["V_Axis"])
groove26.Angle = 360

sketch28 = body.newObject("Sketcher::SketchObject", "Sketch027")
sketch28.Placement = App.Placement(App.Vector(48.870126, -80, 245.686713), App.Rotation(App.Vector(-0.98078528, 0, 0.195090322), App.Vector(0, -0.999999999, 0), App.Vector(0.195090322, 0, 0.98078528), "ZXY"))
add_polygon(sketch28, [(0, 0), (0, -10.251076), (1.25, -9.5), (1.25, 0)])
sketch28.addConstraint([
    Sketcher.Constraint("Vertical", 0),
    Sketcher.Constraint("Vertical", 2),
    Sketcher.Constraint("Horizontal", 3),
    Sketcher.Constraint("Coincident", 3, 2, -1, 1),
    Sketcher.Constraint("Angle", 1, Q("31 deg")),
    Sketcher.Constraint("DistanceY", 2, 1, 2, 2, 9.5),
    Sketcher.Constraint("DistanceX", 3, 2, 3, 1, 1.25),
])
groove27 = body.newObject("PartDesign::Groove", "Groove026")
groove27.Profile = sketch28
groove27.ReferenceAxis = (sketch28, ["V_Axis"])
groove27.Angle = 360

sketch29 = body.newObject("Sketcher::SketchObject", "Sketch028")
sketch29.Placement = App.Placement(App.Vector(95.8622, -80, 231.431823), App.Rotation(App.Vector(-0.923879533, 0, 0.382683432), App.Vector(0, -1.000000001, 0), App.Vector(0.382683432, 0, 0.923879533), "ZXY"))
add_polygon(sketch29, [(0, 0), (0, -10.251076), (1.25, -9.5), (1.25, 0)])
sketch29.addConstraint([
    Sketcher.Constraint("Vertical", 0),
    Sketcher.Constraint("Vertical", 2),
    Sketcher.Constraint("Horizontal", 3),
    Sketcher.Constraint("Coincident", 3, 2, -1, 1),
    Sketcher.Constraint("Angle", 1, Q("31 deg")),
    Sketcher.Constraint("DistanceY", 2, 1, 2, 2, 9.5),
    Sketcher.Constraint("DistanceX", 3, 2, 3, 1, 1.25),
])
groove28 = body.newObject("PartDesign::Groove", "Groove027")
groove28.Profile = sketch29
groove28.ReferenceAxis = (sketch29, ["V_Axis"])
groove28.Angle = 360

sketch30 = body.newObject("Sketcher::SketchObject", "Sketch029")
sketch30.Placement = App.Placement(App.Vector(139.170343, -80, 208.283138), App.Rotation(App.Vector(-0.831469612, 0, 0.555570233), App.Vector(0, -0.999999999, 0), App.Vector(0.555570233, 0, 0.831469612), "ZXY"))
add_polygon(sketch30, [(0, 0), (0, -10.251076), (1.25, -9.5), (1.25, 0)])
sketch30.addConstraint([
    Sketcher.Constraint("Vertical", 0),
    Sketcher.Constraint("Vertical", 2),
    Sketcher.Constraint("Horizontal", 3),
    Sketcher.Constraint("Coincident", 3, 2, -1, 1),
    Sketcher.Constraint("Angle", 1, Q("31 deg")),
    Sketcher.Constraint("DistanceY", 2, 1, 2, 2, 9.5),
    Sketcher.Constraint("DistanceX", 3, 2, 3, 1, 1.25),
])
groove29 = body.newObject("PartDesign::Groove", "Groove028")
groove29.Profile = sketch30
groove29.ReferenceAxis = (sketch30, ["V_Axis"])
groove29.Angle = 360

sketch31 = body.newObject("Sketcher::SketchObject", "Sketch030")
sketch31.Placement = App.Placement(App.Vector(177.130249, -80, 177.130249), App.Rotation(App.Vector(-0.707106781, 0, 0.707106781), App.Vector(0, -0.999999999, 0), App.Vector(0.707106781, 0, 0.707106781), "ZXY"))
add_polygon(sketch31, [(0, 0), (0, -10.251076), (1.25, -9.5), (1.25, 0)])
sketch31.addConstraint([
    Sketcher.Constraint("Vertical", 0),
    Sketcher.Constraint("Vertical", 2),
    Sketcher.Constraint("Horizontal", 3),
    Sketcher.Constraint("Coincident", 3, 2, -1, 1),
    Sketcher.Constraint("Angle", 1, Q("31 deg")),
    Sketcher.Constraint("DistanceY", 2, 1, 2, 2, 9.5),
    Sketcher.Constraint("DistanceX", 3, 2, 3, 1, 1.25),
])
groove30 = body.newObject("PartDesign::Groove", "Groove029")
groove30.Profile = sketch31
groove30.ReferenceAxis = (sketch31, ["V_Axis"])
groove30.Angle = 360

sketch32 = body.newObject("Sketcher::SketchObject", "Sketch031")
sketch32.Placement = App.Placement(App.Vector(208.283138, -80, 139.170343), App.Rotation(App.Vector(-0.555570233, 0, 0.831469612), App.Vector(0, -0.999999999, 0), App.Vector(0.831469612, 0, 0.555570233), "ZXY"))
add_polygon(sketch32, [(0, 0), (0, -10.251076), (1.25, -9.5), (1.25, 0)])
sketch32.addConstraint([
    Sketcher.Constraint("Vertical", 0),
    Sketcher.Constraint("Vertical", 2),
    Sketcher.Constraint("Horizontal", 3),
    Sketcher.Constraint("Coincident", 3, 2, -1, 1),
    Sketcher.Constraint("Angle", 1, Q("31 deg")),
    Sketcher.Constraint("DistanceY", 2, 1, 2, 2, 9.5),
    Sketcher.Constraint("DistanceX", 3, 2, 3, 1, 1.25),
])
groove31 = body.newObject("PartDesign::Groove", "Groove030")
groove31.Profile = sketch32
groove31.ReferenceAxis = (sketch32, ["V_Axis"])
groove31.Angle = 360

sketch33 = body.newObject("Sketcher::SketchObject", "Sketch032")
sketch33.Placement = App.Placement(App.Vector(231.431823, -80, 95.8622), App.Rotation(App.Vector(-0.382683432, 0, 0.923879533), App.Vector(0, -1.000000001, 0), App.Vector(0.923879533, 0, 0.382683432), "ZXY"))
add_polygon(sketch33, [(0, 0), (0, -10.251076), (1.25, -9.5), (1.25, 0)])
sketch33.addConstraint([
    Sketcher.Constraint("Vertical", 0),
    Sketcher.Constraint("Vertical", 2),
    Sketcher.Constraint("Horizontal", 3),
    Sketcher.Constraint("Coincident", 3, 2, -1, 1),
    Sketcher.Constraint("Angle", 1, Q("31 deg")),
    Sketcher.Constraint("DistanceY", 2, 1, 2, 2, 9.5),
    Sketcher.Constraint("DistanceX", 3, 2, 3, 1, 1.25),
])
groove32 = body.newObject("PartDesign::Groove", "Groove031")
groove32.Profile = sketch33
groove32.ReferenceAxis = (sketch33, ["V_Axis"])
groove32.Angle = 360

sketch34 = body.newObject("Sketcher::SketchObject", "Sketch033")
sketch34.Placement = App.Placement(App.Vector(245.686713, -80, 48.870126), App.Rotation(App.Vector(-0.195090322, 0, 0.98078528), App.Vector(0, -0.999999999, 0), App.Vector(0.98078528, 0, 0.195090322), "ZXY"))
add_polygon(sketch34, [(0, 0), (0, -10.251076), (1.25, -9.5), (1.25, 0)])
sketch34.addConstraint([
    Sketcher.Constraint("Vertical", 0),
    Sketcher.Constraint("Vertical", 2),
    Sketcher.Constraint("Horizontal", 3),
    Sketcher.Constraint("Coincident", 3, 2, -1, 1),
    Sketcher.Constraint("Angle", 1, Q("31 deg")),
    Sketcher.Constraint("DistanceY", 2, 1, 2, 2, 9.5),
    Sketcher.Constraint("DistanceX", 3, 2, 3, 1, 1.25),
])
groove33 = body.newObject("PartDesign::Groove", "Groove032")
groove33.Profile = sketch34
groove33.ReferenceAxis = (sketch34, ["V_Axis"])
groove33.Angle = 360

doc.recompute()
